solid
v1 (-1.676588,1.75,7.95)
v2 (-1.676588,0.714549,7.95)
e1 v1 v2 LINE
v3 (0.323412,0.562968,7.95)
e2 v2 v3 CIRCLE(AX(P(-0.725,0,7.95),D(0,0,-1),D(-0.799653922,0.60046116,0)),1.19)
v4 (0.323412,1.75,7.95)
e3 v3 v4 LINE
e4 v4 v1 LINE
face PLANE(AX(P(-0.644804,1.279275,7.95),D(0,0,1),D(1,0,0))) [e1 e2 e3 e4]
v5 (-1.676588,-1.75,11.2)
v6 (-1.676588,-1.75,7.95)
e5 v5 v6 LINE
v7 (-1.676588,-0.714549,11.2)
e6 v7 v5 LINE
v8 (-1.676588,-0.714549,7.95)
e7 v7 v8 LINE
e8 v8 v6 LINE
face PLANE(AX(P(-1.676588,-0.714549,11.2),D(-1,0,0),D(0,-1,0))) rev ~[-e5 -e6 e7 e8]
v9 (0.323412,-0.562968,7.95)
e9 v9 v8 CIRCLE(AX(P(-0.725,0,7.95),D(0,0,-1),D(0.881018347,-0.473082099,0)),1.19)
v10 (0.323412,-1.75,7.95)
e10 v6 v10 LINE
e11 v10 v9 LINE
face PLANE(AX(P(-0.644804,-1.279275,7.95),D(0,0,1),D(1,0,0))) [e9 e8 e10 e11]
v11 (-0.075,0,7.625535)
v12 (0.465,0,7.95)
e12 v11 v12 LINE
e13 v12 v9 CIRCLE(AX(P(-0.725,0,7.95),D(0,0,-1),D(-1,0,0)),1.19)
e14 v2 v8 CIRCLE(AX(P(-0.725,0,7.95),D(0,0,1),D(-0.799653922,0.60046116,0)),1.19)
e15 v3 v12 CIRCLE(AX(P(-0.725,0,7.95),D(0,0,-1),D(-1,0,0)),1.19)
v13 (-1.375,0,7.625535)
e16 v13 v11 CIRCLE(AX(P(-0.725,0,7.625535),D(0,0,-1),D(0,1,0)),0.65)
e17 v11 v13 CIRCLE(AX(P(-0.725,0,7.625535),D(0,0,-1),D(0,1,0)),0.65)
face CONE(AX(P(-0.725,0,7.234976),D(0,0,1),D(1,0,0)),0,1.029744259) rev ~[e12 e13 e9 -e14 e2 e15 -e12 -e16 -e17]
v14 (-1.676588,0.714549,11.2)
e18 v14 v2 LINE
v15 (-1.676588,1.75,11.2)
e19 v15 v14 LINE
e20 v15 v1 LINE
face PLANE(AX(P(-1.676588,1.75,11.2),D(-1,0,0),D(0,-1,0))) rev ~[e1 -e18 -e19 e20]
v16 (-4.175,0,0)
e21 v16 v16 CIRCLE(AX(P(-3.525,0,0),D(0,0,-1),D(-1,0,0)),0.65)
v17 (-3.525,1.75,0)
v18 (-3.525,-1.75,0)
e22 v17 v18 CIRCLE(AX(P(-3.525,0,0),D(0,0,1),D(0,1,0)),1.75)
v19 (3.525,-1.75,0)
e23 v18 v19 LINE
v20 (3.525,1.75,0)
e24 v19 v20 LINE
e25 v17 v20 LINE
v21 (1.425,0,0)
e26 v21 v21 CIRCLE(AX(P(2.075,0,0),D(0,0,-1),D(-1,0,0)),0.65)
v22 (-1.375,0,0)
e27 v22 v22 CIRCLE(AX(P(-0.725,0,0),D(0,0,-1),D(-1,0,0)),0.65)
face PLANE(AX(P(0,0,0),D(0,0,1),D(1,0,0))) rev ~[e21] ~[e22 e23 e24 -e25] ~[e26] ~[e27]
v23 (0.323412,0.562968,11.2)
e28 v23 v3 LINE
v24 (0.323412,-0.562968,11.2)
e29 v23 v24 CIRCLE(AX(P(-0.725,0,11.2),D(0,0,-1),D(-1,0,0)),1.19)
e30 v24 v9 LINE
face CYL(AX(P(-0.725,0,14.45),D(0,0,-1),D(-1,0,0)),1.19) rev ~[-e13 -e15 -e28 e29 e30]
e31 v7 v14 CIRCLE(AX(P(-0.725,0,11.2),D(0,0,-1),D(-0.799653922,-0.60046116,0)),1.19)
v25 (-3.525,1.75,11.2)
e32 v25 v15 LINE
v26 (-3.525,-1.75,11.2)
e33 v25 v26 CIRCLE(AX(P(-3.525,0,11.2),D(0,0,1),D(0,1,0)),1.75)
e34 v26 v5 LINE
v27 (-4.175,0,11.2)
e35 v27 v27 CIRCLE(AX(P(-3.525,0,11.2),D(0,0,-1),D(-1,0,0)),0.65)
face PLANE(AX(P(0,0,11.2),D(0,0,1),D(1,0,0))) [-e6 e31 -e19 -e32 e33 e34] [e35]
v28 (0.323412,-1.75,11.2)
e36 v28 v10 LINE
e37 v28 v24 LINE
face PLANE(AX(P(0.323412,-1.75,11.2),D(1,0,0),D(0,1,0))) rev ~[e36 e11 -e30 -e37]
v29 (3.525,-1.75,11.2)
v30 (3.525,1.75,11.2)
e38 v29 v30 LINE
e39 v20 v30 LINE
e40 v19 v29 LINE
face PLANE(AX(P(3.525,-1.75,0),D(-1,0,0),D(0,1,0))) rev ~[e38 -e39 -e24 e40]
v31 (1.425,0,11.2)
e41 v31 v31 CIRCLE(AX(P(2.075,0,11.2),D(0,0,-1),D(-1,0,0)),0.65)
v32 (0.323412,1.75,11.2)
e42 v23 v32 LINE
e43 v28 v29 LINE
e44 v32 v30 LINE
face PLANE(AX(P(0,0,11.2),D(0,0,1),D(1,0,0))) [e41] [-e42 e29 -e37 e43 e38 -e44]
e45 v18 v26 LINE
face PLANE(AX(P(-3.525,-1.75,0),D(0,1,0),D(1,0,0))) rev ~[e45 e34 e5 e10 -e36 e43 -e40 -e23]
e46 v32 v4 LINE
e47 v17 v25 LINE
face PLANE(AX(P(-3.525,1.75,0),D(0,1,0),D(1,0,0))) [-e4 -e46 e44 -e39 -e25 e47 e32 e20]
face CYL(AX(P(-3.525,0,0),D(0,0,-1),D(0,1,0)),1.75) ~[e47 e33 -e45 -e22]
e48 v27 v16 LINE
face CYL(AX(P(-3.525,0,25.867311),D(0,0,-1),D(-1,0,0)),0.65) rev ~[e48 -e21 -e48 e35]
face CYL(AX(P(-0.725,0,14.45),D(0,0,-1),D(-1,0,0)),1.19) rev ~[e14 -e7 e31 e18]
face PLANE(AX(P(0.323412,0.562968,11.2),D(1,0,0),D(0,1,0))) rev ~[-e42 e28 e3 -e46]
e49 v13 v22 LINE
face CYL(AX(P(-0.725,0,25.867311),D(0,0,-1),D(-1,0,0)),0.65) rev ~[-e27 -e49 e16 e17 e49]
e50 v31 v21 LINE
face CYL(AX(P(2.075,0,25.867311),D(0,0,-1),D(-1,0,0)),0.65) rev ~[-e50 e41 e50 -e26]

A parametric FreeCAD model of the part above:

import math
import FreeCAD as App
import Part
import Sketcher

V = App.Vector
Q = App.Units.Quantity

doc = App.newDocument("Part")
body = doc.addObject("PartDesign::Body", "Body")

sketch1 = body.newObject("Sketcher::SketchObject", "Sketch")
sketch1.AttachmentSupport = (doc.getObject("XY_Plane"), [""])
sketch1.MapMode = "FlatFace"
sketch1.addGeometry([
    Part.LineSegment(V(-3.5, -1.8, 0), V(3.5, -1.8, 0)),
    Part.LineSegment(V(3.5, -1.8, 0), V(3.5, 1.8, 0)),
    Part.LineSegment(V(3.5, 1.8, 0), V(-3.5, 1.8, 0)),
    Part.ArcOfCircle(Part.Circle(V(-3.5, 0, 0), V(0, 0, 1), 1.8), math.radians(90), math.radians(270)),
], False)
sketch1.addConstraint([
    Sketcher.Constraint("Coincident", 0, 2, 1, 1),
    Sketcher.Constraint("Coincident", 1, 2, 2, 1),
    Sketcher.Constraint("Tangent", 2, 2, 3, 1),
    Sketcher.Constraint("Tangent", 3, 2, 0, 1),
    Sketcher.Constraint("Horizontal", 0),
    Sketcher.Constraint("Vertical", 1),
    Sketcher.Constraint("Horizontal", 2),
    Sketcher.Constraint("Symmetric", 0, 2, 2, 2, -1, 1),
    Sketcher.Constraint("Radius", 3, Q("1.75 mm")),
    Sketcher.Constraint("DistanceX", 0, 1, 0, 2, Q("7.05 mm")),
])
pad1 = body.newObject("PartDesign::Pad", "Pad")
pad1.Profile = sketch1
pad1.Length = 11.2

sketch2 = body.newObject("Sketcher::SketchObject", "Sketch001")
sketch2.AttachmentSupport = (doc.getObject("XY_Plane"), [""])
sketch2.MapMode = "FlatFace"
sketch2.AttachmentOffset = App.Placement(V(0, 0, 11.2), App.Rotation())
sketch2.addGeometry(Part.Circle(V(-0.7, 0, 0), V(0, 0, 1), 1.2), False)
sketch2.addConstraint([
    Sketcher.Constraint("PointOnObject", 0, 3, -1),
    Sketcher.Constraint("Diameter", 0, Q("2.38 mm")),
    Sketcher.Constraint("DistanceX", 0, 3, -1, 1, Q("0.725 mm")),
])
doc.recompute()
hole = body.newObject("PartDesign::Hole", "Hole")
hole.Profile = sketch2
hole.ThreadType = "None"
hole.Diameter = 2.38
hole.DepthType = "Dimension"
hole.Depth = 3.25
hole.DrillPoint = "Angled"
hole.DrillPointAngle = 118

sketch3 = body.newObject("Sketcher::SketchObject", "Sketch002")
sketch3.AttachmentSupport = (doc.getObject("XY_Plane"), [""])
sketch3.MapMode = "FlatFace"
sketch3.AttachmentOffset = App.Placement(V(0, 0, 11.2), App.Rotation())
sketch3.addGeometry([
    Part.Circle(V(-3.5, 0, 0), V(0, 0, 1), 0.7),
    Part.Circle(V(-0.7, 0, 0), V(0, 0, 1), 0.7),
    Part.Circle(V(2.1, 0, 0), V(0, 0, 1), 0.7),
], False)
sketch3.addConstraint([
    Sketcher.Constraint("Equal", 0, 1),
    Sketcher.Constraint("Equal", 1, 2),
    Sketcher.Constraint("PointOnObject", 0, 3, -1),
    Sketcher.Constraint("PointOnObject", 1, 3, -1),
    Sketcher.Constraint("PointOnObject", 2, 3, -1),
    Sketcher.Constraint("Diameter", 0, Q("1.3 mm")),
    Sketcher.Constraint("DistanceX", 0, 3, 1, 3, Q("2.8 mm")),
    Sketcher.Constraint("DistanceX", 1, 3, 2, 3, Q("2.8 mm")),
    Sketcher.Constraint("DistanceX", 0, 3, -1, 1, Q("3.525 mm")),
])
doc.recompute()
hole2 = body.newObject("PartDesign::Hole", "Hole001")
hole2.Profile = sketch3
hole2.ThreadType = "None"
hole2.Diameter = 1.3
hole2.DepthType = "ThroughAll"

sketch4 = body.newObject("Sketcher::SketchObject", "Sketch003")
sketch4.AttachmentSupport = (doc.getObject("XY_Plane"), [""])
sketch4.MapMode = "FlatFace"
sketch4.AttachmentOffset = App.Placement(V(0, 0, 11.2), App.Rotation())
sketch4.addGeometry([
    Part.LineSegment(V(-1.7, -1.8, 0), V(0.3, -1.8, 0)),
    Part.LineSegment(V(0.3, -1.8, 0), V(0.3, -0.6, 0)),
    Part.ArcOfCircle(Part.Circle(V(-0.7, 0, 0), V(0, 0, 1), 1.2), math.radians(-143), math.radians(-28)),
    Part.LineSegment(V(-1.7, -0.7, 0), V(-1.7, -1.8, 0)),
    Part.ArcOfCircle(Part.Circle(V(-0.7, 0, 0), V(0, 0, 1), 1.2), math.radians(28), math.radians(143)),
    Part.LineSegment(V(0.3, 0.6, 0), V(0.3, 1.8, 0)),
    Part.LineSegment(V(0.3, 1.8, 0), V(-1.7, 1.8, 0)),
    Part.LineSegment(V(-1.7, 1.8, 0), V(-1.7, 0.7, 0)),
], False)
sketch4.addConstraint([
    Sketcher.Constraint("Coincident", 0, 2, 1, 1),
    Sketcher.Constraint("Coincident", 1, 2, 2, 2),
    Sketcher.Constraint("Coincident", 2, 1, 3, 1),
    Sketcher.Constraint("Coincident", 3, 2, 0, 1),
    Sketcher.Constraint("Coincident", 4, 1, 5, 1),
    Sketcher.Constraint("Coincident", 5, 2, 6, 1),
    Sketcher.Constraint("Coincident", 6, 2, 7, 1),
    Sketcher.Constraint("Coincident", 7, 2, 4, 2),
    Sketcher.Constraint("Horizontal", 0),
    Sketcher.Constraint("Vertical", 1),
    Sketcher.Constraint("Vertical", 3),
    Sketcher.Constraint("Vertical", 5),
    Sketcher.Constraint("Horizontal", 6),
    Sketcher.Constraint("Vertical", 7),
    Sketcher.Constraint("Coincident", 4, 3, 2, 3),
    Sketcher.Constraint("Equal", 2, 4),
    Sketcher.Constraint("Symmetric", 1, 2, 4, 1, -1),
    Sketcher.Constraint("Symmetric", 3, 2, 6, 2, -1),
    Sketcher.Constraint("DistanceX", 0, 1, 0, 2, Q("2 mm")),
    Sketcher.Constraint("Radius", 2, Q("1.19 mm")),
    Sketcher.Constraint("DistanceY", 0, 2, -1, 1, Q("1.75 mm")),
    Sketcher.Constraint("DistanceX", 2, 3, -1, 1, Q("0.725 mm")),
    Sketcher.Constraint("DistanceY", 3, 2, 3, 1, Q("1.035451 mm")),
])
pocket1 = body.newObject("PartDesign::Pocket", "Pocket")
pocket1.Profile = sketch4
pocket1.Length = 3.25

doc.recompute()
